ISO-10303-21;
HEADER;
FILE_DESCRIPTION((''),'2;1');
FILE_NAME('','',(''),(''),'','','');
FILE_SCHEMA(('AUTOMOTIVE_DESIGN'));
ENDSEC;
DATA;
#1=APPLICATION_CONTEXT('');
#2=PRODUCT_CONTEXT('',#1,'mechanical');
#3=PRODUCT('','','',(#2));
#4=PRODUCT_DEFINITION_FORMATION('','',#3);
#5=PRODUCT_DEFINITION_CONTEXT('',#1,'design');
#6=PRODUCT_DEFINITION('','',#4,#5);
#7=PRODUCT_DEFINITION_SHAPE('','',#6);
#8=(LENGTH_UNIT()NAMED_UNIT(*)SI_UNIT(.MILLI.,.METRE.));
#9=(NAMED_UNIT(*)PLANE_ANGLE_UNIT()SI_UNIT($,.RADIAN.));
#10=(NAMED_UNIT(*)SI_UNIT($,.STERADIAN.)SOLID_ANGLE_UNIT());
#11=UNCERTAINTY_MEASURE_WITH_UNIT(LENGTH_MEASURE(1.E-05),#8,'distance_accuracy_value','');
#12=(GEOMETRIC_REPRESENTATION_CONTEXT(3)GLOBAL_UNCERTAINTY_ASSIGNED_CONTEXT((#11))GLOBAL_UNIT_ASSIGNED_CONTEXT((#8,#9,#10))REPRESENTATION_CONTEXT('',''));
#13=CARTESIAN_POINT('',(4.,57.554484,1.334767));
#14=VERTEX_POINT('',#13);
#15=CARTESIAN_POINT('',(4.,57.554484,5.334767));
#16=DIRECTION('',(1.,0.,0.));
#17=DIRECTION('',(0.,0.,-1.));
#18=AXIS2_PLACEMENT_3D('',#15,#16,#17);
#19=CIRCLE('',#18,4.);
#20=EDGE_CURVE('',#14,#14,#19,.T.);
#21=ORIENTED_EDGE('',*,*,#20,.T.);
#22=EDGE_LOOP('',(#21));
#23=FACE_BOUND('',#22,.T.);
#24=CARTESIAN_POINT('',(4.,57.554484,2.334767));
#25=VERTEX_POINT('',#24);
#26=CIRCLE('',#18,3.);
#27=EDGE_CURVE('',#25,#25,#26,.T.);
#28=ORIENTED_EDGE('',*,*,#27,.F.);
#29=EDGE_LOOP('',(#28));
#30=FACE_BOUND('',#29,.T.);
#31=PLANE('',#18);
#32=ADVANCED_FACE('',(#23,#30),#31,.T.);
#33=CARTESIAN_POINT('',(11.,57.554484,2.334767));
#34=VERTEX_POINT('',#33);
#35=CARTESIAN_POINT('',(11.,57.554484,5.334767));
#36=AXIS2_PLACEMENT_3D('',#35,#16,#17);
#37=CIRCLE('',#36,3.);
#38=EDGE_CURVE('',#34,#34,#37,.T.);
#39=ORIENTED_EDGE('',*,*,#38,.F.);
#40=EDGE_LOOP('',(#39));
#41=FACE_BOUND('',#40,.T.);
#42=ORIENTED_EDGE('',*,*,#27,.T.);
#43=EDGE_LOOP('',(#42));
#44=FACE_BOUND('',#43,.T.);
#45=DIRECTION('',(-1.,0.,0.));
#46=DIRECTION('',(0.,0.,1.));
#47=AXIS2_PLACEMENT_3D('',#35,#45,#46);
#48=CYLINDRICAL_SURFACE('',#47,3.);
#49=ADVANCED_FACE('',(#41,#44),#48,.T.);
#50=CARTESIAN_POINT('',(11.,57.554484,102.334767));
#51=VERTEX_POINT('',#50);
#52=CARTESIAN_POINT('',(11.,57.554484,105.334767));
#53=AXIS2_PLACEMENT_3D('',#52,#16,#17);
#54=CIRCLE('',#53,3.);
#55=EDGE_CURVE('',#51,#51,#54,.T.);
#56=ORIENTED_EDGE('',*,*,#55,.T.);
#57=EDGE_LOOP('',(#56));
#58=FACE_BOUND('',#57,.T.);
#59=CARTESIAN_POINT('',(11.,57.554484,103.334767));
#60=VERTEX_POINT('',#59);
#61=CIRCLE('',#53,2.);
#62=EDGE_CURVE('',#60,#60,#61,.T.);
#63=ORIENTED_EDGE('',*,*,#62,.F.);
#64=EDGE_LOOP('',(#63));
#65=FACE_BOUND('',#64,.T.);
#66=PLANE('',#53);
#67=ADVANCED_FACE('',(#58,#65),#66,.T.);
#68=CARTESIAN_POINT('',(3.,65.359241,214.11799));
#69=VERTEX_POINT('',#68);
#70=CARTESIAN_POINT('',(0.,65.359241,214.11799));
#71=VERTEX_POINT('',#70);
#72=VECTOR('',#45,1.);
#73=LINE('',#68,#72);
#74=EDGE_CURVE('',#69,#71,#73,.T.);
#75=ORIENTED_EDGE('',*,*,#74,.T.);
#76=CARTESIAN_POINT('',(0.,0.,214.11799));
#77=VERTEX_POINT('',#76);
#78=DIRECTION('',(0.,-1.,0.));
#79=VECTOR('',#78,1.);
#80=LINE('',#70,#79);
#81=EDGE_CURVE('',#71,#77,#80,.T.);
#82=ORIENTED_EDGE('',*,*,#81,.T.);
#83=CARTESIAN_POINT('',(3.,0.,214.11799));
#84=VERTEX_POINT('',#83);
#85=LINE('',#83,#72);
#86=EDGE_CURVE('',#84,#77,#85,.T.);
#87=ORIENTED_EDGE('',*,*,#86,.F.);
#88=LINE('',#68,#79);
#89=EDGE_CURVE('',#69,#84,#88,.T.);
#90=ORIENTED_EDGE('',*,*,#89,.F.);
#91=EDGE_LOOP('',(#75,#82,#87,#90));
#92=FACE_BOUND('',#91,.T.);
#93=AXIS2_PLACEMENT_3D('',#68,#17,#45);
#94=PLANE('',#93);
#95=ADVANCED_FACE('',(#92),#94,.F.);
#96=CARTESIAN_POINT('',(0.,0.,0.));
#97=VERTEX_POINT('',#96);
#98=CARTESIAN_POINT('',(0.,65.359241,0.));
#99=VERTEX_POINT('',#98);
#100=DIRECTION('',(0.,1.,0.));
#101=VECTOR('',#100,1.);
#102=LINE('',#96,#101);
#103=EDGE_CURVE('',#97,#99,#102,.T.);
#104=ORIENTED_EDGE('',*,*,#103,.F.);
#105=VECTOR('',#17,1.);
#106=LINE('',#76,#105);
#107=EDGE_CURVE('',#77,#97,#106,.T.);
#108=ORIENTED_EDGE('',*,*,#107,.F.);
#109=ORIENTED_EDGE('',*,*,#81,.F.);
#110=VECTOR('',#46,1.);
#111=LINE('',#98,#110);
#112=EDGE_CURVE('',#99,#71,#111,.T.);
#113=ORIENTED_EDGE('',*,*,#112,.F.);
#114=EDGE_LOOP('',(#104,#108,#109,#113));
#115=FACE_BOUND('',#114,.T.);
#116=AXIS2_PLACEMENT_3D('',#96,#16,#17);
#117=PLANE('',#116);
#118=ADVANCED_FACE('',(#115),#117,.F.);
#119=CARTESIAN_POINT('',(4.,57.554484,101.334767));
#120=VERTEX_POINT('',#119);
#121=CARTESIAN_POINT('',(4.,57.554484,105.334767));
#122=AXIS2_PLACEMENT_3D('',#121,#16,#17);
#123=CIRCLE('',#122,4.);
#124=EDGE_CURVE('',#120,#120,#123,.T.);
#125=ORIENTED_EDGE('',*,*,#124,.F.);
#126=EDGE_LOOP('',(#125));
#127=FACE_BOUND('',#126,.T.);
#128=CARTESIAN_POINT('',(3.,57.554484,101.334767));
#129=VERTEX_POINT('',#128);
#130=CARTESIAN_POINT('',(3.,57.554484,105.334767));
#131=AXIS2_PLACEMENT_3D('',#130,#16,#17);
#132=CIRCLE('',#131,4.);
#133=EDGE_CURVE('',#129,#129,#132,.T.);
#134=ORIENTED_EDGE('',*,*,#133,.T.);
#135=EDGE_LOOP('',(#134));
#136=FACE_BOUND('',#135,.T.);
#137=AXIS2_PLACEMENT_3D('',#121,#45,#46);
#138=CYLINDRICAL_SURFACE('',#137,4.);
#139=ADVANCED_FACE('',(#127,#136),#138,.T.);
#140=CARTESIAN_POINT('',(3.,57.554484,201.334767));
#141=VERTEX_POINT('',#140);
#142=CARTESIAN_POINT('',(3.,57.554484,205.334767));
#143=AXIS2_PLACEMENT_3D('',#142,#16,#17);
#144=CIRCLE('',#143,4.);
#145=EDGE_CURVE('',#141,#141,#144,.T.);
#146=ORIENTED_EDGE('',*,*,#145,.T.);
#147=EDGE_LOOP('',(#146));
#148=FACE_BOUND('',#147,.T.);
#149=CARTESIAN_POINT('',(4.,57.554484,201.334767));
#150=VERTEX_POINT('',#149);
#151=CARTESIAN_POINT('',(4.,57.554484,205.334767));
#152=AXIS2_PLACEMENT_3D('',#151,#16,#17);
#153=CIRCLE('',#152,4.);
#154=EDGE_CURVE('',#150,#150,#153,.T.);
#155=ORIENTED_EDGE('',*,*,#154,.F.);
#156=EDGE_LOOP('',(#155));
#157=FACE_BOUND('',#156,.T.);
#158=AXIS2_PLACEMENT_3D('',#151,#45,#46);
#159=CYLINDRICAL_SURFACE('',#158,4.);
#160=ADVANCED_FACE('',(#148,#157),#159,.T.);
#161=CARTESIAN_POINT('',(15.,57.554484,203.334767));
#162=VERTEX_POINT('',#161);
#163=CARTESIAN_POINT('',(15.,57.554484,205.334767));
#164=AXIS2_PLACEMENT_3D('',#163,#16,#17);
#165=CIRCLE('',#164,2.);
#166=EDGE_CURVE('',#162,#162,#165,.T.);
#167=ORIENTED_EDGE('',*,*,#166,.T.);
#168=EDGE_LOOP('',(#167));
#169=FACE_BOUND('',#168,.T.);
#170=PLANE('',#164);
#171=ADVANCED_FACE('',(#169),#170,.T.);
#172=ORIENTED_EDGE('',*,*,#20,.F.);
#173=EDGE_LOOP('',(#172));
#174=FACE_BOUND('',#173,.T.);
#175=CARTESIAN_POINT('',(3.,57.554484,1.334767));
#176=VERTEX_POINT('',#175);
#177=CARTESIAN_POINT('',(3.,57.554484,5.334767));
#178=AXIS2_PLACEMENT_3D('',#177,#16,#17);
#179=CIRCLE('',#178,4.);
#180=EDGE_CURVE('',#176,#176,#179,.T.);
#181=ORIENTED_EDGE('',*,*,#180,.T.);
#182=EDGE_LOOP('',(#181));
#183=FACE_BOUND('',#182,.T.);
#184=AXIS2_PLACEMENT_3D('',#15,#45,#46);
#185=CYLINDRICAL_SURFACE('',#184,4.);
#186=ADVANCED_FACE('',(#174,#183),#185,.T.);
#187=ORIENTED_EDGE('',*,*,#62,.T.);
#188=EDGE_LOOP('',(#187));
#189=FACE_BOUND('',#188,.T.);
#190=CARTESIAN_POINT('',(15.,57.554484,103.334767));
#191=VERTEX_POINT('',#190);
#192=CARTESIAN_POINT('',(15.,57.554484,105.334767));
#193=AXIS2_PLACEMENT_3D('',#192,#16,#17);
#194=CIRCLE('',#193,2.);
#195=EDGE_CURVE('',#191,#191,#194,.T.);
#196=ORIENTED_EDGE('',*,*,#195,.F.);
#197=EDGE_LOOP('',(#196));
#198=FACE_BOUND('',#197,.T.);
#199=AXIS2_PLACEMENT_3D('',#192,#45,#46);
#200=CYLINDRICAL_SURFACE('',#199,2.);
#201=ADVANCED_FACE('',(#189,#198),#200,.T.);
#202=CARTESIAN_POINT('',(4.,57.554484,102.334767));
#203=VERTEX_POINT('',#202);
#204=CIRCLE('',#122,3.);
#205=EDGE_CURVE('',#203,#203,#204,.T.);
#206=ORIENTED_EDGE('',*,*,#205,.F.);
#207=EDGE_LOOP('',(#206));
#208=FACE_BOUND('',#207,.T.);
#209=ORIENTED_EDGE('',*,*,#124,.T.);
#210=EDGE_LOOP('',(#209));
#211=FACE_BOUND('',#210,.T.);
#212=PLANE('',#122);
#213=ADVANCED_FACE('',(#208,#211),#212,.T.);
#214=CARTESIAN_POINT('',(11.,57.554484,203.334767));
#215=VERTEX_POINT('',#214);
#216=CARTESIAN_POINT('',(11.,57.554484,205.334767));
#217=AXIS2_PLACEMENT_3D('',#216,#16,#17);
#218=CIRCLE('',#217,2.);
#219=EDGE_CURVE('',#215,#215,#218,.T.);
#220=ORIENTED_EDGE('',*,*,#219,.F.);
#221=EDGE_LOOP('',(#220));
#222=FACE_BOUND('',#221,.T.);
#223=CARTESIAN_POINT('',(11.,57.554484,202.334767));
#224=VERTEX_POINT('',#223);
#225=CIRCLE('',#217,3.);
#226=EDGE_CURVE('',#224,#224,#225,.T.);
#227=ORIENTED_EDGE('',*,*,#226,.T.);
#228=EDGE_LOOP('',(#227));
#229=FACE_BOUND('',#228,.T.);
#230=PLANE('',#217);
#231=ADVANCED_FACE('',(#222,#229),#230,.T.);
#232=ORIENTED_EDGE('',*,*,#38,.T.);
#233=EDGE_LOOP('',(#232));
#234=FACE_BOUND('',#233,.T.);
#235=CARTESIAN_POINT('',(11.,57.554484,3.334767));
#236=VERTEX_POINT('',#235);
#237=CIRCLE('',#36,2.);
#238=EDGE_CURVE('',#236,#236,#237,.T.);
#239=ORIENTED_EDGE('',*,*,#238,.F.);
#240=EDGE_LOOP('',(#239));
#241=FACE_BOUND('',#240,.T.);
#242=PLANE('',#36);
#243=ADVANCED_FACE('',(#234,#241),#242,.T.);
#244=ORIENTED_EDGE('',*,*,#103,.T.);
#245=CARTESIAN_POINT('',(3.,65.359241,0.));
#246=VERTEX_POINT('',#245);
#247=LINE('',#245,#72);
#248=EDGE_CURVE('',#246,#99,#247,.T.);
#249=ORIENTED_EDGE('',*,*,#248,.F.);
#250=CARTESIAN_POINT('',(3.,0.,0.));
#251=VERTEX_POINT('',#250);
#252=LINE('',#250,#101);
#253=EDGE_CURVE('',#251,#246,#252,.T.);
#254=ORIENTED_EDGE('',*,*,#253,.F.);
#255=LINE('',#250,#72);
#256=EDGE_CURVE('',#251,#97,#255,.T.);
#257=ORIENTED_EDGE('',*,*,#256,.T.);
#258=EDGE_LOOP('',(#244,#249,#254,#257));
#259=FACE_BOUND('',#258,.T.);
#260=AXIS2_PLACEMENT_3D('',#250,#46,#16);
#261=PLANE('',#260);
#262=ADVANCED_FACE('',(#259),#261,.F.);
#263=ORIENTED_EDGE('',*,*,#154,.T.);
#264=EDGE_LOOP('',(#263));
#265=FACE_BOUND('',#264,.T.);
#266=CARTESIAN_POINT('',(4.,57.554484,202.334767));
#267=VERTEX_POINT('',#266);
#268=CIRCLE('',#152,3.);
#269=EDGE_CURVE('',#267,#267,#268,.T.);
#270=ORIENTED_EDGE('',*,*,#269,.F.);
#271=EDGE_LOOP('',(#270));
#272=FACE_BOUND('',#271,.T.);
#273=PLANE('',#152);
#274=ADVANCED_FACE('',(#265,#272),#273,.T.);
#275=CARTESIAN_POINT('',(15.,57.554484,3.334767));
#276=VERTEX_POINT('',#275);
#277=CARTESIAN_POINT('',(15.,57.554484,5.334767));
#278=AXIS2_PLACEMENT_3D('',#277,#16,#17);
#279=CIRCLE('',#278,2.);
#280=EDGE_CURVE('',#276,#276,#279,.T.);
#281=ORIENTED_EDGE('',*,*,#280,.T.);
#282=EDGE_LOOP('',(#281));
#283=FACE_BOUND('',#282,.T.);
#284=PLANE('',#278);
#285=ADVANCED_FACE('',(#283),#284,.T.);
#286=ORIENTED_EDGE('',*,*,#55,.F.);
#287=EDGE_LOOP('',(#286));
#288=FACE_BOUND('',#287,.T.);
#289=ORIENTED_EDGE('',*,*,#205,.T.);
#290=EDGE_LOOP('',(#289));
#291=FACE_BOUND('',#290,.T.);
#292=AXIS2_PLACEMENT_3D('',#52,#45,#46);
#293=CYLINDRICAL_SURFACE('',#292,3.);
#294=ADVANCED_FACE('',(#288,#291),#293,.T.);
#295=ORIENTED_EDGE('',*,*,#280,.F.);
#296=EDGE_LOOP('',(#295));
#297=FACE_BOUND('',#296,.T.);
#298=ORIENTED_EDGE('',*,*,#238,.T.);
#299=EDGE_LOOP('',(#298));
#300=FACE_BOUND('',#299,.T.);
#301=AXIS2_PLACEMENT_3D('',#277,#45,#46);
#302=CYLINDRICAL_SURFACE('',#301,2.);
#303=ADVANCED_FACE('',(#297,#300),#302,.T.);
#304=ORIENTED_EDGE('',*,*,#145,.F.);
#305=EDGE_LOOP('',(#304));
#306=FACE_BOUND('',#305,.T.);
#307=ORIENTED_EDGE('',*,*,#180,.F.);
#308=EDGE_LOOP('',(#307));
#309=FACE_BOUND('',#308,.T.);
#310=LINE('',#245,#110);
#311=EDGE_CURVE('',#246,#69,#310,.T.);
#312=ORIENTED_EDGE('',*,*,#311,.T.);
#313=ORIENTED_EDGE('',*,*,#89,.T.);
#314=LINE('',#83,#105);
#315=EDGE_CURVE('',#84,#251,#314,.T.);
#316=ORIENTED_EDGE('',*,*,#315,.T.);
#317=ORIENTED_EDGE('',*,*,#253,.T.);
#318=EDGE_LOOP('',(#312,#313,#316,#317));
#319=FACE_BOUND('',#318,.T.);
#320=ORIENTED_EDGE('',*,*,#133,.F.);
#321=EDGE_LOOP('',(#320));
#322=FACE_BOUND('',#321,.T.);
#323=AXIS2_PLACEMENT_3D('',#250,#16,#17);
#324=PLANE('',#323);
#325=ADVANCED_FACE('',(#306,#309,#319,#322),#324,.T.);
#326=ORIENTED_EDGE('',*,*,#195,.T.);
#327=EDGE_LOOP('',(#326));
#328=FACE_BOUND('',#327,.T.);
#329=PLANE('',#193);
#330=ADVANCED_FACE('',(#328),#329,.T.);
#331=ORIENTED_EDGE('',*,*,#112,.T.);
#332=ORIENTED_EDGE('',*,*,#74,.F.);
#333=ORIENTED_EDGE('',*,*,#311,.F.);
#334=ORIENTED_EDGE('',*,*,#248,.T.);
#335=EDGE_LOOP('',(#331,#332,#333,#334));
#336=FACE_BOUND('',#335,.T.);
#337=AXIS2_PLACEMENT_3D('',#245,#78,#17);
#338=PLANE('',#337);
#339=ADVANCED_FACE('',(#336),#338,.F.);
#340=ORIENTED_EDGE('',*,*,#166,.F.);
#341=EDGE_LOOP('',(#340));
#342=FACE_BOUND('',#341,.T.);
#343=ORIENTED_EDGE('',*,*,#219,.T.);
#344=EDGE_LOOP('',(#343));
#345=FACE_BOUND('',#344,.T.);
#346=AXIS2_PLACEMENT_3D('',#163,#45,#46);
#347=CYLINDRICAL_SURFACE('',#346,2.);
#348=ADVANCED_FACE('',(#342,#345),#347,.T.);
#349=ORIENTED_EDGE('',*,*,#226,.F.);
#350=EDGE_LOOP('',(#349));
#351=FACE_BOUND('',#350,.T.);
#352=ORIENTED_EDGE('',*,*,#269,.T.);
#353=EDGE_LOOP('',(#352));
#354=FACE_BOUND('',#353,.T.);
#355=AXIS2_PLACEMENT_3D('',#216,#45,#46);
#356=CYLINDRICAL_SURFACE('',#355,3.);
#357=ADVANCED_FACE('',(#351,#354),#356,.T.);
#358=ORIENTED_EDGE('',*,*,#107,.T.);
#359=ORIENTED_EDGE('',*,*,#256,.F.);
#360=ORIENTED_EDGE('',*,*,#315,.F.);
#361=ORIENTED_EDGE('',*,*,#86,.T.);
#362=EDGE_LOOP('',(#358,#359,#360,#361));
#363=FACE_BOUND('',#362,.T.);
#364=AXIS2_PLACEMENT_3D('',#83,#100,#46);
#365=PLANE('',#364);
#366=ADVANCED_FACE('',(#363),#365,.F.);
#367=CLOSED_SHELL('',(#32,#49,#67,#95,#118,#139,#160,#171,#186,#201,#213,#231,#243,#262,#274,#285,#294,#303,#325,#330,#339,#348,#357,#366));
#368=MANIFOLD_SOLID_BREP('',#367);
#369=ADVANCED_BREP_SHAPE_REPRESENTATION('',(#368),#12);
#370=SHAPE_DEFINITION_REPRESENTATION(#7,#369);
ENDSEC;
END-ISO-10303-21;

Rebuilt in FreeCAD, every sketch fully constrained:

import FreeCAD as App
import Part
import Sketcher

doc = App.newDocument("Part")
body = doc.addObject("PartDesign::Body", "Body")

# Sketch on YZ plane
sketch1 = body.newObject("Sketcher::SketchObject", "Sketch")
sketch1.AttachmentSupport = (doc.getObject("YZ_Plane"), [""])
sketch1.MapMode = "FlatFace"
sketch1.addGeometry(Part.LineSegment(App.Vector(65.359241, 214.11799, 0), App.Vector(0, 214.11799, 0)), False)
sketch1.addGeometry(Part.LineSegment(App.Vector(0, 214.11799, 0), App.Vector(0, 0, 0)), False)
sketch1.addGeometry(Part.LineSegment(App.Vector(0, 0, 0), App.Vector(65.359241, 0, 0)), False)
sketch1.addGeometry(Part.LineSegment(App.Vector(65.359241, 0, 0), App.Vector(65.359241, 214.11799, 0)), False)
sketch1.addConstraint(Sketcher.Constraint("Coincident", 0, 2, 1, 1))
sketch1.addConstraint(Sketcher.Constraint("Coincident", 1, 2, 2, 1))
sketch1.addConstraint(Sketcher.Constraint("Coincident", 2, 2, 3, 1))
sketch1.addConstraint(Sketcher.Constraint("Coincident", 3, 2, 0, 1))
sketch1.addConstraint(Sketcher.Constraint("Horizontal", 0))
sketch1.addConstraint(Sketcher.Constraint("Vertical", 1))
sketch1.addConstraint(Sketcher.Constraint("Horizontal", 2))
sketch1.addConstraint(Sketcher.Constraint("Vertical", 3))
sketch1.addConstraint(Sketcher.Constraint("Coincident", 1, 2, -1, 1))
sketch1.addConstraint(Sketcher.Constraint("DistanceX", 0, 2, 0, 1, 65.359241))
sketch1.addConstraint(Sketcher.Constraint("DistanceY", 1, 2, 1, 1, 214.11799))
pad1 = body.newObject("PartDesign::Pad", "Pad")
pad1.Profile = sketch1
pad1.Length = 3

# Sketch on YZ plane
sketch2 = body.newObject("Sketcher::SketchObject", "Sketch001")
sketch2.AttachmentSupport = (doc.getObject("YZ_Plane"), [""])
sketch2.MapMode = "FlatFace"
sketch2.AttachmentOffset = App.Placement(App.Vector(0, 0, 3), App.Rotation())
sketch2.addGeometry(Part.Circle(App.Vector(57.554484, 5.334767, 0), App.Vector(0, 0, 1), 2), False)
sketch2.addConstraint(Sketcher.Constraint("Diameter", 0, 4.0))
sketch2.addConstraint(Sketcher.Constraint("DistanceX", -1, 1, 0, 3, 57.554484))
sketch2.addConstraint(Sketcher.Constraint("DistanceY", -1, 1, 0, 3, 5.334767))
pad2 = body.newObject("PartDesign::Pad", "Pad001")
pad2.Profile = sketch2
pad2.Length = 12

# Sketch on YZ plane
sketch3 = body.newObject("Sketcher::SketchObject", "Sketch002")
sketch3.AttachmentSupport = (doc.getObject("YZ_Plane"), [""])
sketch3.MapMode = "FlatFace"
sketch3.AttachmentOffset = App.Placement(App.Vector(0, 0, 3), App.Rotation())
sketch3.addGeometry(Part.Circle(App.Vector(57.554484, 105.334767, 0), App.Vector(0, 0, 1), 2), False)
sketch3.addConstraint(Sketcher.Constraint("Diameter", 0, 4.0))
sketch3.addConstraint(Sketcher.Constraint("DistanceX", -1, 1, 0, 3, 57.554484))
sketch3.addConstraint(Sketcher.Constraint("DistanceY", -1, 1, 0, 3, 105.334767))
pad3 = body.newObject("PartDesign::Pad", "Pad002")
pad3.Profile = sketch3
pad3.Length = 12

# Sketch on YZ plane
sketch4 = body.newObject("Sketcher::SketchObject", "Sketch003")
sketch4.AttachmentSupport = (doc.getObject("YZ_Plane"), [""])
sketch4.MapMode = "FlatFace"
sketch4.AttachmentOffset = App.Placement(App.Vector(0, 0, 3), App.Rotation())
sketch4.addGeometry(Part.Circle(App.Vector(57.554484, 205.334767, 0), App.Vector(0, 0, 1), 2), False)
sketch4.addConstraint(Sketcher.Constraint("Diameter", 0, 4.0))
sketch4.addConstraint(Sketcher.Constraint("DistanceX", -1, 1, 0, 3, 57.554484))
sketch4.addConstraint(Sketcher.Constraint("DistanceY", -1, 1, 0, 3, 205.334767))
pad4 = body.newObject("PartDesign::Pad", "Pad003")
pad4.Profile = sketch4
pad4.Length = 12

# Sketch on YZ plane
sketch5 = body.newObject("Sketcher::SketchObject", "Sketch004")
sketch5.AttachmentSupport = (doc.getObject("YZ_Plane"), [""])
sketch5.MapMode = "FlatFace"
sketch5.AttachmentOffset = App.Placement(App.Vector(0, 0, 3), App.Rotation())
sketch5.addGeometry(Part.Circle(App.Vector(57.554484, 5.334767, 0), App.Vector(0, 0, 1), 3), False)
sketch5.addConstraint(Sketcher.Constraint("Diameter", 0, 6.0))
sketch5.addConstraint(Sketcher.Constraint("DistanceX", -1, 1, 0, 3, 57.554484))
sketch5.addConstraint(Sketcher.Constraint("DistanceY", -1, 1, 0, 3, 5.334767))
pad5 = body.newObject("PartDesign::Pad", "Pad004")
pad5.Profile = sketch5
pad5.Length = 8

# Sketch on YZ plane
sketch6 = body.newObject("Sketcher::SketchObject", "Sketch005")
sketch6.AttachmentSupport = (doc.getObject("YZ_Plane"), [""])
sketch6.MapMode = "FlatFace"
sketch6.AttachmentOffset = App.Placement(App.Vector(0, 0, 3), App.Rotation())
sketch6.addGeometry(Part.Circle(App.Vector(57.554484, 5.334767, 0), App.Vector(0, 0, 1), 4), False)
sketch6.addConstraint(Sketcher.Constraint("Diameter", 0, 8.0))
sketch6.addConstraint(Sketcher.Constraint("DistanceX", -1, 1, 0, 3, 57.554484))
sketch6.addConstraint(Sketcher.Constraint("DistanceY", -1, 1, 0, 3, 5.334767))
pad6 = body.newObject("PartDesign::Pad", "Pad005")
pad6.Profile = sketch6
pad6.Length = 1

# Sketch on YZ plane
sketch7 = body.newObject("Sketcher::SketchObject", "Sketch006")
sketch7.AttachmentSupport = (doc.getObject("YZ_Plane"), [""])
sketch7.MapMode = "FlatFace"
sketch7.AttachmentOffset = App.Placement(App.Vector(0, 0, 3), App.Rotation())
sketch7.addGeometry(Part.Circle(App.Vector(57.554484, 105.334767, 0), App.Vector(0, 0, 1), 3), False)
sketch7.addConstraint(Sketcher.Constraint("Diameter", 0, 6.0))
sketch7.addConstraint(Sketcher.Constraint("DistanceX", -1, 1, 0, 3, 57.554484))
sketch7.addConstraint(Sketcher.Constraint("DistanceY", -1, 1, 0, 3, 105.334767))
pad7 = body.newObject("PartDesign::Pad", "Pad006")
pad7.Profile = sketch7
pad7.Length = 8

# Sketch on YZ plane
sketch8 = body.newObject("Sketcher::SketchObject", "Sketch007")
sketch8.AttachmentSupport = (doc.getObject("YZ_Plane"), [""])
sketch8.MapMode = "FlatFace"
sketch8.AttachmentOffset = App.Placement(App.Vector(0, 0, 3), App.Rotation())
sketch8.addGeometry(Part.Circle(App.Vector(57.554484, 205.334767, 0), App.Vector(0, 0, 1), 3), False)
sketch8.addConstraint(Sketcher.Constraint("Diameter", 0, 6.0))
sketch8.addConstraint(Sketcher.Constraint("DistanceX", -1, 1, 0, 3, 57.554484))
sketch8.addConstraint(Sketcher.Constraint("DistanceY", -1, 1, 0, 3, 205.334767))
pad8 = body.newObject("PartDesign::Pad", "Pad007")
pad8.Profile = sketch8
pad8.Length = 8

# Sketch on YZ plane
sketch9 = body.newObject("Sketcher::SketchObject", "Sketch008")
sketch9.AttachmentSupport = (doc.getObject("YZ_Plane"), [""])
sketch9.MapMode = "FlatFace"
sketch9.AttachmentOffset = App.Placement(App.Vector(0, 0, 3), App.Rotation())
sketch9.addGeometry(Part.Circle(App.Vector(57.554484, 105.334767, 0), App.Vector(0, 0, 1), 4), False)
sketch9.addConstraint(Sketcher.Constraint("Diameter", 0, 8.0))
sketch9.addConstraint(Sketcher.Constraint("DistanceX", -1, 1, 0, 3, 57.554484))
sketch9.addConstraint(Sketcher.Constraint("DistanceY", -1, 1, 0, 3, 105.334767))
pad9 = body.newObject("PartDesign::Pad", "Pad008")
pad9.Profile = sketch9
pad9.Length = 1

# Sketch on YZ plane
sketch10 = body.newObject("Sketcher::SketchObject", "Sketch009")
sketch10.AttachmentSupport = (doc.getObject("YZ_Plane"), [""])
sketch10.MapMode = "FlatFace"
sketch10.AttachmentOffset = App.Placement(App.Vector(0, 0, 3), App.Rotation())
sketch10.addGeometry(Part.Circle(App.Vector(57.554484, 205.334767, 0), App.Vector(0, 0, 1), 4), False)
sketch10.addConstraint(Sketcher.Constraint("Diameter", 0, 8.0))
sketch10.addConstraint(Sketcher.Constraint("DistanceX", -1, 1, 0, 3, 57.554484))
sketch10.addConstraint(Sketcher.Constraint("DistanceY", -1, 1, 0, 3, 205.334767))
pad10 = body.newObject("PartDesign::Pad", "Pad009")
pad10.Profile = sketch10
pad10.Length = 1

doc.recompute()
